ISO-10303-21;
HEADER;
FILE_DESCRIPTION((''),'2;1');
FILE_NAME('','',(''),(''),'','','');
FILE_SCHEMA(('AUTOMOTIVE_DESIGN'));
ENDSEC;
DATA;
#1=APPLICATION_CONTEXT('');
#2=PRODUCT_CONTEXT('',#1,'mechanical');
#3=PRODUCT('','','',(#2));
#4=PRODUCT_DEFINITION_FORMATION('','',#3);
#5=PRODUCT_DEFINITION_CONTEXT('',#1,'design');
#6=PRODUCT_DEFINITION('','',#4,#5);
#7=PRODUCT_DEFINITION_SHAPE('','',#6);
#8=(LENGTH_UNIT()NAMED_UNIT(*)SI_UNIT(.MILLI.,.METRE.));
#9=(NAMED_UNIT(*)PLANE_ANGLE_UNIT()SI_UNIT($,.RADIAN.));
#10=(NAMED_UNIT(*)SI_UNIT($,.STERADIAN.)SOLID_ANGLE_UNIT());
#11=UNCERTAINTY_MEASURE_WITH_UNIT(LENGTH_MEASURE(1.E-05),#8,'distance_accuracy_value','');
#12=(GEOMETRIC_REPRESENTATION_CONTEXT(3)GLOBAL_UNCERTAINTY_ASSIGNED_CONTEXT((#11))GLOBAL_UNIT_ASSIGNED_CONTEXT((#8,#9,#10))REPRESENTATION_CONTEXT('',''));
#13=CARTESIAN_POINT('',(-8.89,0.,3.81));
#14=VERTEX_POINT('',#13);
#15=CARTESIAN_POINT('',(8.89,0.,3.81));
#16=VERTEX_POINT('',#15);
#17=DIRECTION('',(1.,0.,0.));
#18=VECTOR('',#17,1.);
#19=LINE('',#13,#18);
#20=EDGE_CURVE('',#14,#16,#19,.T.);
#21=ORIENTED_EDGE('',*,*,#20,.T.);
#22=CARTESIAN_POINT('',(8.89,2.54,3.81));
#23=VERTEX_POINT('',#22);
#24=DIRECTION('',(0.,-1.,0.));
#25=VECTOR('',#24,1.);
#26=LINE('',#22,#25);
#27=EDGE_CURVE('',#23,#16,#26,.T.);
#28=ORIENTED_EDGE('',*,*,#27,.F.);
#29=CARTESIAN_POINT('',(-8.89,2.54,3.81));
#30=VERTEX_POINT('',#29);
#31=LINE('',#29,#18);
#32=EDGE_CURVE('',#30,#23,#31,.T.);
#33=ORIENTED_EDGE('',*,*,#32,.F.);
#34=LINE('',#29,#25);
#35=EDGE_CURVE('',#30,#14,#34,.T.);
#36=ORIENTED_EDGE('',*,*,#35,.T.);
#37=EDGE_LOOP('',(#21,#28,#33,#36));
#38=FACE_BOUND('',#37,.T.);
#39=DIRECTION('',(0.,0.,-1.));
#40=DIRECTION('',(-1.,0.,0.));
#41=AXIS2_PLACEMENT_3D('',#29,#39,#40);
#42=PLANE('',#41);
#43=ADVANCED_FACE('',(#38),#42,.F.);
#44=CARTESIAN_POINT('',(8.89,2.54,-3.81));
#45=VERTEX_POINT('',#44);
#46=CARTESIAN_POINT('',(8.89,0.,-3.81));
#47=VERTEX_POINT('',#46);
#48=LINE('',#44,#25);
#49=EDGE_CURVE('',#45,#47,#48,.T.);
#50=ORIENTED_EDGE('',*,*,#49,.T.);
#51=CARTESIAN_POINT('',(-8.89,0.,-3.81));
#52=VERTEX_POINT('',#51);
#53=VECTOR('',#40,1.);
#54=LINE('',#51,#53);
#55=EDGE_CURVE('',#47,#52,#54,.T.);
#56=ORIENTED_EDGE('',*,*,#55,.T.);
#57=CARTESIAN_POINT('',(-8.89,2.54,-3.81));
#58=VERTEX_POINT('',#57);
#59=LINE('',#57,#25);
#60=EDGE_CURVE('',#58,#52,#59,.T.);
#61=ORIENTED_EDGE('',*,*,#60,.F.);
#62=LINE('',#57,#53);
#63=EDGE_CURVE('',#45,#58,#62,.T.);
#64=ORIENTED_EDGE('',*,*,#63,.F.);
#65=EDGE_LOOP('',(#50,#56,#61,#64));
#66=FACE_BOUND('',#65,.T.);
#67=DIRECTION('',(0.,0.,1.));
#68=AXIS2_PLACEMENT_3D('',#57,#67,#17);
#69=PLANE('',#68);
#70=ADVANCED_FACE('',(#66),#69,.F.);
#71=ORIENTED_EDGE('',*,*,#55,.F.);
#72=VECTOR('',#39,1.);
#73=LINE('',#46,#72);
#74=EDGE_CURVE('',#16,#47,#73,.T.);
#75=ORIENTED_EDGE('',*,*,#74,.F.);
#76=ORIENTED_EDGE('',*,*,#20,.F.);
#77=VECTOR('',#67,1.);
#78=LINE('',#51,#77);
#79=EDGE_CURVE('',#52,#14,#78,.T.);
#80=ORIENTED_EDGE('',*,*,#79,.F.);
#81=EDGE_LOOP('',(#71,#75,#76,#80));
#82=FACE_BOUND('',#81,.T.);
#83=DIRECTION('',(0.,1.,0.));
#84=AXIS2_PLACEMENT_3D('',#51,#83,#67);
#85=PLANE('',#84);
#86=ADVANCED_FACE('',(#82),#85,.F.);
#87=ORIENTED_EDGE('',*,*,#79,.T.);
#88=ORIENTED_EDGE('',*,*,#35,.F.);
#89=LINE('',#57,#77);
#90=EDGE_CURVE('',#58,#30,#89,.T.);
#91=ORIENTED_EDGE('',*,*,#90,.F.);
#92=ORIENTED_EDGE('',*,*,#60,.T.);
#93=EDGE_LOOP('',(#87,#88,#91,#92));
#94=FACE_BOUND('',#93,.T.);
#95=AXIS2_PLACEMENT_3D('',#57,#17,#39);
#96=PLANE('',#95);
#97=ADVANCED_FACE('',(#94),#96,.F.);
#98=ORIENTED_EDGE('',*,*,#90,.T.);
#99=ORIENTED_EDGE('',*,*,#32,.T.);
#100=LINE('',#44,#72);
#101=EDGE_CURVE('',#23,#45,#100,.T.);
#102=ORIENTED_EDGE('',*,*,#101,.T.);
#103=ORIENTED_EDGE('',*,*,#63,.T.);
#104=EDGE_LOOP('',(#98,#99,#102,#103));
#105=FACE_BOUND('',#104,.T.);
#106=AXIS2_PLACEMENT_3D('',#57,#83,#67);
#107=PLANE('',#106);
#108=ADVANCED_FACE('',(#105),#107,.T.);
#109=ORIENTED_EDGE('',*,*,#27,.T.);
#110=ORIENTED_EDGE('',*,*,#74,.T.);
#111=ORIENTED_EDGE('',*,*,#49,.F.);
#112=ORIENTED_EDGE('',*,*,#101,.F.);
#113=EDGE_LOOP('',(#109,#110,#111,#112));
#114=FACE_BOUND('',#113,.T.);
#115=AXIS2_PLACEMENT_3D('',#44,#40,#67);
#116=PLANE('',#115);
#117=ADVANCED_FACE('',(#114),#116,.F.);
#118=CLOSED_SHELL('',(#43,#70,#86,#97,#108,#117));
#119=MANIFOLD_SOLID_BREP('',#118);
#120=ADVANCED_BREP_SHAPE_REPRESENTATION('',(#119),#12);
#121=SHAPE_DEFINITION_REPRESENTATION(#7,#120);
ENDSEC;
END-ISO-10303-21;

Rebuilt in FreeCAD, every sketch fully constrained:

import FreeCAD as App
import Part
import Sketcher
from FreeCAD import Vector
Q = App.Units.Quantity

doc = App.newDocument("Part")
body = doc.addObject("PartDesign::Body", "Body")

# Sketch on XZ plane
sketch1 = body.newObject("Sketcher::SketchObject", "Sketch")
sketch1.AttachmentSupport = (doc.getObject("XZ_Plane"), [""])
sketch1.MapMode = "FlatFace"
sketch1.addGeometry(Part.LineSegment(Vector(-9, -4, 0), Vector(-9, 4, 0)), False)
sketch1.addGeometry(Part.LineSegment(Vector(-9, 4, 0), Vector(9, 4, 0)), False)
sketch1.addGeometry(Part.LineSegment(Vector(9, 4, 0), Vector(9, -4, 0)), False)
sketch1.addGeometry(Part.LineSegment(Vector(9, -4, 0), Vector(-9, -4, 0)), False)
sketch1.addConstraint(Sketcher.Constraint("Coincident", 0, 2, 1, 1))
sketch1.addConstraint(Sketcher.Constraint("Coincident", 1, 2, 2, 1))
sketch1.addConstraint(Sketcher.Constraint("Coincident", 2, 2, 3, 1))
sketch1.addConstraint(Sketcher.Constraint("Coincident", 3, 2, 0, 1))
sketch1.addConstraint(Sketcher.Constraint("Vertical", 0))
sketch1.addConstraint(Sketcher.Constraint("Horizontal", 1))
sketch1.addConstraint(Sketcher.Constraint("Vertical", 2))
sketch1.addConstraint(Sketcher.Constraint("Horizontal", 3))
sketch1.addConstraint(Sketcher.Constraint("Symmetric", 0, 2, 2, 2, -1, 1))
sketch1.addConstraint(Sketcher.Constraint("DistanceX", 1, 1, 1, 2, Q("0.7 in")))
sketch1.addConstraint(Sketcher.Constraint("DistanceY", 0, 1, 0, 2, Q("0.3 in")))
pad1 = body.newObject("PartDesign::Pad", "Pad")
pad1.Profile = sketch1
pad1.Length = Q("0.1 in")
pad1.Reversed = True

doc.recompute()
